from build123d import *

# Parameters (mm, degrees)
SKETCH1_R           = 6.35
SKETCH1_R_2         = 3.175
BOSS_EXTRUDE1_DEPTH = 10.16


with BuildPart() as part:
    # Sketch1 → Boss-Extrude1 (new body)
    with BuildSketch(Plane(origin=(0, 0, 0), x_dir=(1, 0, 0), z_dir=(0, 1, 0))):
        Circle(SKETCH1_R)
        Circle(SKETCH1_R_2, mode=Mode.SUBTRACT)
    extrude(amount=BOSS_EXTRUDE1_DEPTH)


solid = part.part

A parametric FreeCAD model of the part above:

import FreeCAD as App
import Part
import Sketcher
Q = App.Units.Quantity

doc = App.newDocument("Part")
params = doc.addObject("Spreadsheet::Sheet", "Params")
for row, (alias, value) in enumerate([
    ("sketch1_diameter", "0.5 in"),
    ("sketch1_diameter2", "0.25 in"),
    ("pad1_length", "0.4 in"),
], start=1):
    params.set(f"A{row}", alias)
    params.set(f"B{row}", "=" + value)
    params.setAlias(f"B{row}", alias)

body = doc.addObject("PartDesign::Body", "Body")

# Sketch on XZ plane
sketch1 = body.newObject("Sketcher::SketchObject", "Sketch")
sketch1.AttachmentSupport = (doc.getObject("XZ_Plane"), [""])
sketch1.MapMode = "FlatFace"
sketch1.addGeometry([
    Part.Circle(App.Vector(0, 0, 0), App.Vector(0, 0, 1), 6.3),
    Part.Circle(App.Vector(0, 0, 0), App.Vector(0, 0, 1), 3.2),
], False)
sketch1.addConstraint([
    Sketcher.Constraint("Coincident", 0, 3, -1, 1),
    Sketcher.Constraint("Coincident", 1, 3, -1, 1),
    Sketcher.Constraint("Diameter", 0, Q("0.5 in")),
    Sketcher.Constraint("Diameter", 1, Q("0.25 in")),
])
sketch1.setExpression("Constraints[2]", "Params.sketch1_diameter")
sketch1.setExpression("Constraints[3]", "Params.sketch1_diameter2")
pad1 = body.newObject("PartDesign::Pad", "Pad")
pad1.Profile = sketch1
pad1.setExpression("Length", "Params.pad1_length")
pad1.Reversed = True

doc.recompute()
